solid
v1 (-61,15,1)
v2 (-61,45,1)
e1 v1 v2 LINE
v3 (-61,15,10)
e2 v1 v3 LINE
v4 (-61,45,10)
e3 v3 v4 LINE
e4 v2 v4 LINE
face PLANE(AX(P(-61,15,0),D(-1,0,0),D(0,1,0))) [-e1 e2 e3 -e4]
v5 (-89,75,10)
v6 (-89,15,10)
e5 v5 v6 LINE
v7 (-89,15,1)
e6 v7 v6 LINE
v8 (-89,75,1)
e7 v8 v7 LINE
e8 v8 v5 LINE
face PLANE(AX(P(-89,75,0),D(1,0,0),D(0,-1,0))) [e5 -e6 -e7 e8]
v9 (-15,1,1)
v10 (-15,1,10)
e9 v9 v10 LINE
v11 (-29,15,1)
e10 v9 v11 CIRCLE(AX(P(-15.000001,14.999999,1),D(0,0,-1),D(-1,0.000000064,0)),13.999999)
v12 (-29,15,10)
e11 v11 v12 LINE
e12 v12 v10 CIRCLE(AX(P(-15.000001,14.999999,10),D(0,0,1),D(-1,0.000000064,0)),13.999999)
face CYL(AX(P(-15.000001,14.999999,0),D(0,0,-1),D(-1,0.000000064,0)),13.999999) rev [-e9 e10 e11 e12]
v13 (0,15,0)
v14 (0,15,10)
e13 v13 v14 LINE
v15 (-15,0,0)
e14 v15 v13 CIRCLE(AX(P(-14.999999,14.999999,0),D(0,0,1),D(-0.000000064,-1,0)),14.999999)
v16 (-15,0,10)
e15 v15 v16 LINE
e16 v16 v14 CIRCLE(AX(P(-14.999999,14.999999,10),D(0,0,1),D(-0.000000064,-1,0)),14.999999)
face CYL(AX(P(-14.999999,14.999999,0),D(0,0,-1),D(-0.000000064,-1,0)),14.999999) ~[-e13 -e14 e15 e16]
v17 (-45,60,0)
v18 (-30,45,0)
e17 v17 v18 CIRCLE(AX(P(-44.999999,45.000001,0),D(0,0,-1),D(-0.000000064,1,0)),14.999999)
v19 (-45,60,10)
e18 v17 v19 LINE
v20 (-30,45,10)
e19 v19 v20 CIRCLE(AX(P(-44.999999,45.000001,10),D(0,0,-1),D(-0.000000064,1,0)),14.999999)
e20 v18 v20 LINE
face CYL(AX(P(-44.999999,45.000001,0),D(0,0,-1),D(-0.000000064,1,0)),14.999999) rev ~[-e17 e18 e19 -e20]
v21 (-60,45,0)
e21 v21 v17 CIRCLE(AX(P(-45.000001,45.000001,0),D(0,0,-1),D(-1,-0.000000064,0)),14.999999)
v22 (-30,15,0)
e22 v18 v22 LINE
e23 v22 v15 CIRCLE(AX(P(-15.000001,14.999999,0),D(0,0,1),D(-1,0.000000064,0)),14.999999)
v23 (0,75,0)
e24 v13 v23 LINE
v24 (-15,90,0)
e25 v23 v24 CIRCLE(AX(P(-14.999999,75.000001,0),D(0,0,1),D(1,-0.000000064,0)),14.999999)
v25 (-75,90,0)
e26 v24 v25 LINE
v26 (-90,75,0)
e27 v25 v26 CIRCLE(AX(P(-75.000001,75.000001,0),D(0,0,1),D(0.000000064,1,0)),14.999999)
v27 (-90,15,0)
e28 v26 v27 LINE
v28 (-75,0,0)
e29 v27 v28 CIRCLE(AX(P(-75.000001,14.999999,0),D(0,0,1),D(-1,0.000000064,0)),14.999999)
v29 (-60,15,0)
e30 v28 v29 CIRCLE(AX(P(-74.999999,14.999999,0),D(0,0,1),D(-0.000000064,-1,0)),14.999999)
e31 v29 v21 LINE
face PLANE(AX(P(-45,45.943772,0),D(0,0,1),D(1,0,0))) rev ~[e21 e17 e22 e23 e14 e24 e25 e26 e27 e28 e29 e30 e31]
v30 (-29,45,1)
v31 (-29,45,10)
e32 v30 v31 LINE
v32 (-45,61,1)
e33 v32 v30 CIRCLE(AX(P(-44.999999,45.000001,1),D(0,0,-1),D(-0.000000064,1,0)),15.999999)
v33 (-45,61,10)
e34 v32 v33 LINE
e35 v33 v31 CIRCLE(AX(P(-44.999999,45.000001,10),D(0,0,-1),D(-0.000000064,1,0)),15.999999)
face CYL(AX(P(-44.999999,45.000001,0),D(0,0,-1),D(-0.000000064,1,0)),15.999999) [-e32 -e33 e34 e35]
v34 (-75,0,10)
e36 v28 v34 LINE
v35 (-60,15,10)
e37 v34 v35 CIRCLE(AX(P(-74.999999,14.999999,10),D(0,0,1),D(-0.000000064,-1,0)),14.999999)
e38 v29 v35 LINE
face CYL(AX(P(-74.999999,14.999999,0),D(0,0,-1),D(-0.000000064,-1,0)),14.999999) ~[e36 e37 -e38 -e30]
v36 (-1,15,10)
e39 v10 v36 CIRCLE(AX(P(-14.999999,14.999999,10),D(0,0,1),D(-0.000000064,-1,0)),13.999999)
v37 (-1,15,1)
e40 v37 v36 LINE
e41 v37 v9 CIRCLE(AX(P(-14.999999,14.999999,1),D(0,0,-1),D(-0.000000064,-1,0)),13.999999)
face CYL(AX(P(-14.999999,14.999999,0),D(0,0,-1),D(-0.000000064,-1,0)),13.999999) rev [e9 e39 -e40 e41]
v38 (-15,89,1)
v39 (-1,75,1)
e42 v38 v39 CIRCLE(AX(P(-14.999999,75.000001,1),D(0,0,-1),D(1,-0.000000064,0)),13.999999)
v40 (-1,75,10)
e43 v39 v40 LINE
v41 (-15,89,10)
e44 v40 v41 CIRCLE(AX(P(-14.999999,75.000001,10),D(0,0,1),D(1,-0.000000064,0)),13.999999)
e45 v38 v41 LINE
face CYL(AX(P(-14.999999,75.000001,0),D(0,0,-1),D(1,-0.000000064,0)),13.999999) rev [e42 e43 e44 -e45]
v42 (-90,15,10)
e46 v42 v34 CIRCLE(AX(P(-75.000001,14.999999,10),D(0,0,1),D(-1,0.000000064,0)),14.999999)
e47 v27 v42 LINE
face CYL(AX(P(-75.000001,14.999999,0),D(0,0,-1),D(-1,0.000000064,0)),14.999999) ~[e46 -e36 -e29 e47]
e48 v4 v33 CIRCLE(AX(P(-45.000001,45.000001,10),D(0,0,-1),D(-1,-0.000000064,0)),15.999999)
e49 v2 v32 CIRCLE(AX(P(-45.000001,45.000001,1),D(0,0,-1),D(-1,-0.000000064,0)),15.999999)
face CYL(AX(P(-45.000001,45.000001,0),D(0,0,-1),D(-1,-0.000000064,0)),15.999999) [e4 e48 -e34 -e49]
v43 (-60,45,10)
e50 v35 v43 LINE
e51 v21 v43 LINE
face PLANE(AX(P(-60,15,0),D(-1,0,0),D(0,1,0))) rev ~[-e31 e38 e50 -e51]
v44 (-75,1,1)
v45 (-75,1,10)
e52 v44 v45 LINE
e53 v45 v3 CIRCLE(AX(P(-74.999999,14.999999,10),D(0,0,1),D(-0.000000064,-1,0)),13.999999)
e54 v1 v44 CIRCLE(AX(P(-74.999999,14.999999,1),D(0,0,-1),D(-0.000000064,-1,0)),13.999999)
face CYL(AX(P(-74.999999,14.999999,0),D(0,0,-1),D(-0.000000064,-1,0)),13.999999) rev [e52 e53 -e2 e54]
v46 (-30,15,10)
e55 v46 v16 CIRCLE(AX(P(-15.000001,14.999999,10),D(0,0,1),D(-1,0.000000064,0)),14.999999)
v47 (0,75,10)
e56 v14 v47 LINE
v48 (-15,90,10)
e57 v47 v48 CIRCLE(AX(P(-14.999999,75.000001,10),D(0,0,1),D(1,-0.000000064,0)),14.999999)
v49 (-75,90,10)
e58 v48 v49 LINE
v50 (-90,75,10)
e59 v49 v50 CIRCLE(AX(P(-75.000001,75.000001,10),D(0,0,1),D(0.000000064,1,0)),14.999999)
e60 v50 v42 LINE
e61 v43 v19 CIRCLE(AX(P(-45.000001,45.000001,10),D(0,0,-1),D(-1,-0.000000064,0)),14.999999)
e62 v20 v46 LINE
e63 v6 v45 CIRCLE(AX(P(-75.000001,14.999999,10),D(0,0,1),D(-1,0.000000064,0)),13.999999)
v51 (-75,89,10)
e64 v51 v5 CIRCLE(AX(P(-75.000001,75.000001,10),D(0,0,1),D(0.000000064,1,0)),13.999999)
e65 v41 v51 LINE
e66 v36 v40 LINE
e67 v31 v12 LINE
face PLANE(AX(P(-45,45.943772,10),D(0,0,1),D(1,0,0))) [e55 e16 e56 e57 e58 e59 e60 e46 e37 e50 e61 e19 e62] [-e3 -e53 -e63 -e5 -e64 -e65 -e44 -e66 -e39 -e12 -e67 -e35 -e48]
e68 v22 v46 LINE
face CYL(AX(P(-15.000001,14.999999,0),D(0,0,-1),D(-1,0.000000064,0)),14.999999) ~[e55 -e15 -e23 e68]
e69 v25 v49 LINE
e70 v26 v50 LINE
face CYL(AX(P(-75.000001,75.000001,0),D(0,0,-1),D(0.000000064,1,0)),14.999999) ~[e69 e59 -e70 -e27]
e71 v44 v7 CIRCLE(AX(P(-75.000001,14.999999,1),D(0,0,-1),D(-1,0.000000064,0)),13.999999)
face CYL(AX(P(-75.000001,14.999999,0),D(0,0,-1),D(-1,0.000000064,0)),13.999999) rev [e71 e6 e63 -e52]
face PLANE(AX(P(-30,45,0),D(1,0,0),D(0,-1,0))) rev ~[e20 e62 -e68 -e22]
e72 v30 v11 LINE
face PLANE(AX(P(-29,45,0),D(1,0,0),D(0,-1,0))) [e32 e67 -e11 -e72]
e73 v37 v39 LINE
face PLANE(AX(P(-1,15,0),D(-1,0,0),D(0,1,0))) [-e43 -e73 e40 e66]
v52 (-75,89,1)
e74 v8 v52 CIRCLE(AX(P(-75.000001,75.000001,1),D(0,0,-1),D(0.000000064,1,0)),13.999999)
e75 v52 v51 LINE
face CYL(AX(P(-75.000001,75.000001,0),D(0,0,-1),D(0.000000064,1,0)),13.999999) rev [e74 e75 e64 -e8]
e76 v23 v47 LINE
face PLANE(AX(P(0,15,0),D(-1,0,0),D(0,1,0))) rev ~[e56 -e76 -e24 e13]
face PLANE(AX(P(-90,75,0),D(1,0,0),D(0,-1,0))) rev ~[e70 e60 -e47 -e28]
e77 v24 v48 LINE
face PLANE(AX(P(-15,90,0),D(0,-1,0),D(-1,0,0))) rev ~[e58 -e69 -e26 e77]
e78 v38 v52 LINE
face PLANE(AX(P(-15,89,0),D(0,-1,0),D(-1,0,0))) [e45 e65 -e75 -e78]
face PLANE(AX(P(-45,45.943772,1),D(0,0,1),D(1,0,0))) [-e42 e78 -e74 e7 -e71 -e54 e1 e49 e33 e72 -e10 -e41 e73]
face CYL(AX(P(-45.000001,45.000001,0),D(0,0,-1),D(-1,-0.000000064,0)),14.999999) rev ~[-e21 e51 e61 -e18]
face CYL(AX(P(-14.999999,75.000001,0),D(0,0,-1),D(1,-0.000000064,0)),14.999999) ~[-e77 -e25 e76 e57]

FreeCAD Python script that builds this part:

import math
import FreeCAD as App
import Part
import Sketcher
from FreeCAD import Vector
Q = App.Units.Quantity


def faces_at(feature, points):
    """Names of the faces that lie closest to the given points."""
    faces = feature.Shape.Faces
    near = lambda p: min(range(len(faces)), key=lambda i: faces[i].distToShape(Part.Vertex(*p))[0])
    return sorted({f"Face{near(p) + 1}" for p in points})

doc = App.newDocument("Part")
body = doc.addObject("PartDesign::Body", "Body")

sketch1 = body.newObject("Sketcher::SketchObject", "Sketch")
sketch1.AttachmentSupport = (doc.getObject("XY_Plane"), [""])
sketch1.MapMode = "FlatFace"
sketch1.addGeometry([
    Part.LineSegment(Vector(-90, 75, 0), Vector(-90, 15, 0)),
    Part.ArcOfCircle(Part.Circle(Vector(-75, 15, 0), Vector(0, 0, 1), 15), math.radians(180), math.radians(270)),
    Part.ArcOfCircle(Part.Circle(Vector(-75, 15, 0), Vector(0, 0, 1), 15), math.radians(-90), math.radians(0)),
    Part.LineSegment(Vector(-60, 15, 0), Vector(-60, 45, 0)),
    Part.ArcOfCircle(Part.Circle(Vector(-45, 45, 0), Vector(0, 0, 1), 15), math.radians(90), math.radians(180)),
    Part.ArcOfCircle(Part.Circle(Vector(-45, 45, 0), Vector(0, 0, 1), 15), math.radians(0), math.radians(90)),
    Part.LineSegment(Vector(-30, 45, 0), Vector(-30, 15, 0)),
    Part.ArcOfCircle(Part.Circle(Vector(-15, 15, 0), Vector(0, 0, 1), 15), math.radians(180), math.radians(270)),
    Part.ArcOfCircle(Part.Circle(Vector(-15, 15, 0), Vector(0, 0, 1), 15), math.radians(-90), math.radians(0)),
    Part.LineSegment(Vector(0, 15, 0), Vector(0, 75, 0)),
    Part.ArcOfCircle(Part.Circle(Vector(-15, 75, 0), Vector(0, 0, 1), 15), math.radians(0), math.radians(90)),
    Part.LineSegment(Vector(-15, 90, 0), Vector(-75, 90, 0)),
    Part.ArcOfCircle(Part.Circle(Vector(-75, 75, 0), Vector(0, 0, 1), 15), math.radians(90), math.radians(180)),
], False)
sketch1.addConstraint([
    Sketcher.Constraint("Tangent", 0, 2, 1, 1),
    Sketcher.Constraint("Tangent", 1, 2, 2, 1),
    Sketcher.Constraint("Tangent", 2, 2, 3, 1),
    Sketcher.Constraint("Tangent", 3, 2, 4, 2),
    Sketcher.Constraint("Tangent", 4, 1, 5, 2),
    Sketcher.Constraint("Tangent", 5, 1, 6, 1),
    Sketcher.Constraint("Tangent", 6, 2, 7, 1),
    Sketcher.Constraint("Tangent", 7, 2, 8, 1),
    Sketcher.Constraint("Tangent", 8, 2, 9, 1),
    Sketcher.Constraint("Tangent", 9, 2, 10, 1),
    Sketcher.Constraint("Tangent", 10, 2, 11, 1),
    Sketcher.Constraint("Tangent", 11, 2, 12, 1),
    Sketcher.Constraint("Tangent", 12, 2, 0, 1),
    Sketcher.Constraint("Vertical", 0),
    Sketcher.Constraint("Vertical", 3),
    Sketcher.Constraint("Vertical", 6),
    Sketcher.Constraint("Vertical", 9),
    Sketcher.Constraint("Horizontal", 11),
    Sketcher.Constraint("Equal", 1, 2),
    Sketcher.Constraint("Equal", 2, 4),
    Sketcher.Constraint("Equal", 4, 5),
    Sketcher.Constraint("Equal", 5, 7),
    Sketcher.Constraint("Equal", 7, 8),
    Sketcher.Constraint("Equal", 8, 10),
    Sketcher.Constraint("Equal", 10, 12),
    Sketcher.Constraint("PointOnObject", 1, 2, -1),
    Sketcher.Constraint("PointOnObject", 7, 2, -1),
    Sketcher.Constraint("PointOnObject", 8, 2, -2),
    Sketcher.Constraint("Vertical", 12, 3, 1, 2),
    Sketcher.Constraint("Vertical", 5, 3, 4, 1),
    Sketcher.Constraint("Vertical", 10, 3, 7, 2),
    Sketcher.Constraint("Equal", 11, 0),
    Sketcher.Constraint("Radius", 1, Q("14.999999 mm")),
    Sketcher.Constraint("DistanceY", 3, 1, 3, 2, Q("30 mm")),
])
pad1 = body.newObject("PartDesign::Pad", "Pad")
pad1.Profile = sketch1
pad1.Length = 10
doc.recompute()

thickness = body.newObject("PartDesign::Thickness", "Thickness")
thickness.Base = (pad1, faces_at(pad1, [(-63, 27, 10)]))
thickness.Value = 1
thickness.Reversed = True
thickness.Join = "Arc"

doc.recompute()
